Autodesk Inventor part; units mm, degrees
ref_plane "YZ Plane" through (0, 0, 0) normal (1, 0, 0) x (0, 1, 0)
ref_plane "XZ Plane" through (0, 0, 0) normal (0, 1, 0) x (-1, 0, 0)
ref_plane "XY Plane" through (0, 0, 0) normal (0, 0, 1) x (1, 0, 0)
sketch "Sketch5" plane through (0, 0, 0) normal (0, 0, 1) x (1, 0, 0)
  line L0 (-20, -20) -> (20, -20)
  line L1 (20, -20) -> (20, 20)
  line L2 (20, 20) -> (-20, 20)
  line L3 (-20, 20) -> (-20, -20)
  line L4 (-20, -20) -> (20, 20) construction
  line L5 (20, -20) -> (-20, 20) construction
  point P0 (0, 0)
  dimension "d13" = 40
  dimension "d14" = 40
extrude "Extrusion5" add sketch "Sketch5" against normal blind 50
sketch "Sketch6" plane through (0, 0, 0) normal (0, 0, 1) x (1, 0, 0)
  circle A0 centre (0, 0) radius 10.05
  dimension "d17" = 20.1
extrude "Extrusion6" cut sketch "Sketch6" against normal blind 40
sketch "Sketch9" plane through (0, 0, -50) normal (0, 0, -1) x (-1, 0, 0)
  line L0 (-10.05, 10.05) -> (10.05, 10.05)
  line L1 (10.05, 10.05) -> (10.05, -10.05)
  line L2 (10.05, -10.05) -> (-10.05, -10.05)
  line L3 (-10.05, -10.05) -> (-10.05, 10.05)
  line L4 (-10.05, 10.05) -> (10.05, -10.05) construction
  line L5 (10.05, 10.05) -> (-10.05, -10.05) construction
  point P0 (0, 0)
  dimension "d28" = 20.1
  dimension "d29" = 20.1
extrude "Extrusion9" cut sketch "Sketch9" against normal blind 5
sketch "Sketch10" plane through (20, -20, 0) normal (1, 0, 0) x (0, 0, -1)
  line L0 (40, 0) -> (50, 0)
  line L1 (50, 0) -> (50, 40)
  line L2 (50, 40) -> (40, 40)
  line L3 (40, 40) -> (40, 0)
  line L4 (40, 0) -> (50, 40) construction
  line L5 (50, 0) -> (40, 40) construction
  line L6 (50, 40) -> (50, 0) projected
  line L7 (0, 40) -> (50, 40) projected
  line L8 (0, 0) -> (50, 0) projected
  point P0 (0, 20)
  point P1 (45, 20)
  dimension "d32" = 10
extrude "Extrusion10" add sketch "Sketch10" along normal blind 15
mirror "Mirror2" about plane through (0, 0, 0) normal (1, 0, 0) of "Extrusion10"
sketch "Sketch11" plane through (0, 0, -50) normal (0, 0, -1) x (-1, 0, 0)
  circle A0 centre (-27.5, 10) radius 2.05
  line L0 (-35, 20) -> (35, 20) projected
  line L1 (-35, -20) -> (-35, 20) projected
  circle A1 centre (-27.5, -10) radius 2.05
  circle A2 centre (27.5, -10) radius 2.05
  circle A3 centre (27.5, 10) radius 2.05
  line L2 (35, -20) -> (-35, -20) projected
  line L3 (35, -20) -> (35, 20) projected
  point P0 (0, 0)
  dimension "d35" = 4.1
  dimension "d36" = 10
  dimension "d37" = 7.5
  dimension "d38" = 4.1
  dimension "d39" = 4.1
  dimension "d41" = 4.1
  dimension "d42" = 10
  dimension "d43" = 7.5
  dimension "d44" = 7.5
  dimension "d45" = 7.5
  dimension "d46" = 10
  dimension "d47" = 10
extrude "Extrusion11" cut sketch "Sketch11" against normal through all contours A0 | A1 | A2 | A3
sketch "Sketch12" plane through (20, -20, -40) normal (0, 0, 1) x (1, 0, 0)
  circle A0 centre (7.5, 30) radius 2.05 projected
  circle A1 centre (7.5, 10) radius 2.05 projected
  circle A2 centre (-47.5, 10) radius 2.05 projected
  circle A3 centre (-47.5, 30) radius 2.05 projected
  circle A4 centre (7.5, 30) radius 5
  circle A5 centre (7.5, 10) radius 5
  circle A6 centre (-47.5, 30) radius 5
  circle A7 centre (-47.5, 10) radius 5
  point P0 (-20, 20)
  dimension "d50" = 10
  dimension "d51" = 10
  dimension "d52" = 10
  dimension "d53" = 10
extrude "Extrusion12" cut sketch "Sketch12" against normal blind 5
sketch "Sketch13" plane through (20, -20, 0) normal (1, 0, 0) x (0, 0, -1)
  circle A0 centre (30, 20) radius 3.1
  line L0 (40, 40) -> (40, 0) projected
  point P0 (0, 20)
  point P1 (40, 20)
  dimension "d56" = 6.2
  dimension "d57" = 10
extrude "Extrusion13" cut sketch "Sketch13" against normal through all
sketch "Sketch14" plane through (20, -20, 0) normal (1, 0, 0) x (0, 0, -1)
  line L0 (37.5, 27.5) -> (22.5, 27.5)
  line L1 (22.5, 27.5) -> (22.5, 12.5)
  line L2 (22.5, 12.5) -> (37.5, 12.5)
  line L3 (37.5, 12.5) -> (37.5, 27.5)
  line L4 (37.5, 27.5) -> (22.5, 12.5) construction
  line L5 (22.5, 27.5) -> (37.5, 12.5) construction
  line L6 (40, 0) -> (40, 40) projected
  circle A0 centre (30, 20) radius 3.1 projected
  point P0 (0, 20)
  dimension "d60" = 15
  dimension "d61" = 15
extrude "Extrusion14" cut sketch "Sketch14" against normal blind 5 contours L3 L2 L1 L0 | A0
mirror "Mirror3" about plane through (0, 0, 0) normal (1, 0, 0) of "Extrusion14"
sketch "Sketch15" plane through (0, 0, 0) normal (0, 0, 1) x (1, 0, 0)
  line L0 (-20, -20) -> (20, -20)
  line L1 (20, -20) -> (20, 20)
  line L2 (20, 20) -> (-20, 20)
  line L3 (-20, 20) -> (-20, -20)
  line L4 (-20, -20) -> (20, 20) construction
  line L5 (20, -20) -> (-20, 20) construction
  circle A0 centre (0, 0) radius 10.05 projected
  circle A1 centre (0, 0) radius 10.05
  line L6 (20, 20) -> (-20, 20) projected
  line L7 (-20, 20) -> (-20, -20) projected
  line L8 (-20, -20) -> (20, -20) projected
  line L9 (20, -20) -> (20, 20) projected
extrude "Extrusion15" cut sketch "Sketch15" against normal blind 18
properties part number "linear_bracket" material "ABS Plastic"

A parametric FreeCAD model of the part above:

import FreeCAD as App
import Part
import Sketcher
Q = App.Units.Quantity


def add_polygon(sketch, points):
    """Adds a closed chain of lines whose ends are joined by coincident constraints."""
    first, n = sketch.GeometryCount, len(points)
    for a, b in zip(points, points[1:] + points[:1]):
        sketch.addGeometry(Part.LineSegment(App.Vector(*a, 0), App.Vector(*b, 0)), False)
    for i in range(n):
        sketch.addConstraint(Sketcher.Constraint("Coincident", first + i, 2, first + (i + 1) % n, 1))

doc = App.newDocument("Part")
params = doc.addObject("Spreadsheet::Sheet", "Params")
for row, (alias, value) in enumerate([
    ("sketch1_width", "40 mm"),
    ("pad1_length", "50 mm"),
    ("sketch2_diameter", "20.1 mm"),
    ("pocket1_length", "40 mm"),
    ("sketch3_width", "20.1 mm"),
    ("pocket2_length", "5 mm"),
    ("sketch4_height", "10 mm"),
    ("sketch4_width", "40 mm"),
    ("pad2_length", "15 mm"),
    ("sketch5_diameter", "4.1 mm"),
    ("sketch6_diameter", "10 mm"),
    ("sketch6_diameter2", "4.1 mm"),
    ("pocket4_length", "5 mm"),
    ("sketch7_diameter", "6.2 mm"),
    ("sketch8_width", "15 mm"),
    ("pocket6_length", "5 mm"),
    ("sketch9_diameter", "20.1 mm"),
    ("sketch9_width", "40 mm"),
    ("pocket7_length", "18 mm"),
], start=1):
    params.set(f"A{row}", alias)
    params.set(f"B{row}", "=" + value)
    params.setAlias(f"B{row}", alias)

body = doc.addObject("PartDesign::Body", "Body")

# Sketch on XY plane
sketch1 = body.newObject("Sketcher::SketchObject", "Sketch")
sketch1.AttachmentSupport = (doc.getObject("XY_Plane"), [""])
sketch1.MapMode = "FlatFace"
add_polygon(sketch1, [(-20, 20), (-20, -20), (20, -20), (20, 20)])  # lines 0-3
sketch1.addConstraint([
    Sketcher.Constraint("Vertical", 0),
    Sketcher.Constraint("Horizontal", 1),
    Sketcher.Constraint("Vertical", 2),
    Sketcher.Constraint("Horizontal", 3),
    Sketcher.Constraint("Symmetric", 0, 2, 2, 2, -1, 1),
    Sketcher.Constraint("Equal", 3, 0),
    Sketcher.Constraint("DistanceX", 1, 1, 1, 2, Q("40 mm")),
])
sketch1.setExpression("Constraints[10]", "Params.sketch1_width")
pad1 = body.newObject("PartDesign::Pad", "Pad")
pad1.Profile = sketch1
pad1.setExpression("Length", "Params.pad1_length")
pad1.Reversed = True

# Sketch on XY plane
sketch2 = body.newObject("Sketcher::SketchObject", "Sketch001")
sketch2.AttachmentSupport = (doc.getObject("XY_Plane"), [""])
sketch2.MapMode = "FlatFace"
sketch2.addGeometry(Part.Circle(App.Vector(0, 0, 0), App.Vector(0, 0, 1), 10), False)
sketch2.addConstraint([
    Sketcher.Constraint("Coincident", 0, 3, -1, 1),
    Sketcher.Constraint("Diameter", 0, Q("20.1 mm")),
])
sketch2.setExpression("Constraints[1]", "Params.sketch2_diameter")
pocket1 = body.newObject("PartDesign::Pocket", "Pocket")
pocket1.Profile = sketch2
pocket1.setExpression("Length", "Params.pocket1_length")

# Sketch on XY plane
sketch3 = body.newObject("Sketcher::SketchObject", "Sketch002")
sketch3.AttachmentSupport = (doc.getObject("XY_Plane"), [""])
sketch3.MapMode = "FlatFace"
sketch3.AttachmentOffset = App.Placement(App.Vector(0, 0, -50), App.Rotation())
add_polygon(sketch3, [(-10, 10), (10, 10), (10, -10), (-10, -10)])  # lines 0-3
sketch3.addConstraint([
    Sketcher.Constraint("Horizontal", 0),
    Sketcher.Constraint("Vertical", 1),
    Sketcher.Constraint("Horizontal", 2),
    Sketcher.Constraint("Vertical", 3),
    Sketcher.Constraint("Symmetric", 0, 2, 2, 2, -1, 1),
    Sketcher.Constraint("Equal", 2, 1),
    Sketcher.Constraint("DistanceX", 0, 1, 0, 2, Q("20.1 mm")),
])
sketch3.setExpression("Constraints[10]", "Params.sketch3_width")
pocket2 = body.newObject("PartDesign::Pocket", "Pocket001")
pocket2.Profile = sketch3
pocket2.setExpression("Length", "Params.pocket2_length")
pocket2.Reversed = True

# Sketch on YZ plane
sketch4 = body.newObject("Sketcher::SketchObject", "Sketch003")
sketch4.AttachmentSupport = (doc.getObject("YZ_Plane"), [""])
sketch4.MapMode = "FlatFace"
sketch4.AttachmentOffset = App.Placement(App.Vector(0, 0, 20), App.Rotation())
add_polygon(sketch4, [(20, -40), (-20, -40), (-20, -50), (20, -50)])  # lines 0-3
sketch4.addConstraint([
    Sketcher.Constraint("Horizontal", 0),
    Sketcher.Constraint("Vertical", 1),
    Sketcher.Constraint("Horizontal", 2),
    Sketcher.Constraint("Vertical", 3),
    Sketcher.Constraint("DistanceY", 1, 2, 1, 1, Q("10 mm")),
    Sketcher.Constraint("DistanceX", 0, 2, 0, 1, Q("40 mm")),
    Sketcher.Constraint("DistanceX", 0, 2, -1, 1, Q("20 mm")),
    Sketcher.Constraint("DistanceY", 0, 2, -1, 1, Q("40 mm")),
])
sketch4.setExpression("Constraints[8]", "Params.sketch4_height")
sketch4.setExpression("Constraints[9]", "Params.sketch4_width")
pad2 = body.newObject("PartDesign::Pad", "Pad001")
pad2.Profile = sketch4
pad2.setExpression("Length", "Params.pad2_length")
doc.recompute()

mirrored = body.newObject("PartDesign::Mirrored", "Mirrored")
mirrored.Originals = [pad2]
mirrored.MirrorPlane = (doc.getObject("YZ_Plane"), [""])
body.Tip = mirrored

# Sketch on XY plane
sketch5 = body.newObject("Sketcher::SketchObject", "Sketch004")
sketch5.AttachmentSupport = (doc.getObject("XY_Plane"), [""])
sketch5.MapMode = "FlatFace"
sketch5.AttachmentOffset = App.Placement(App.Vector(0, 0, -50), App.Rotation())
sketch5.addGeometry([
    Part.Circle(App.Vector(27.5, 10, 0), App.Vector(0, 0, 1), 2),
    Part.Circle(App.Vector(27.5, -10, 0), App.Vector(0, 0, 1), 2),
    Part.Circle(App.Vector(-27.5, -10, 0), App.Vector(0, 0, 1), 2),
    Part.Circle(App.Vector(-27.5, 10, 0), App.Vector(0, 0, 1), 2),
], False)
sketch5.addConstraint([
    Sketcher.Constraint("Equal", 0, 1),
    Sketcher.Constraint("Equal", 1, 2),
    Sketcher.Constraint("Equal", 2, 3),
    Sketcher.Constraint("Symmetric", 0, 3, 2, 3, -1, 1),
    Sketcher.Constraint("Symmetric", 1, 3, 3, 3, -1, 1),
    Sketcher.Constraint("Symmetric", 1, 3, 2, 3, -2),
    Sketcher.Constraint("Diameter", 0, Q("4.1 mm")),
    Sketcher.Constraint("DistanceY", -1, 1, 0, 3, Q("10 mm")),
    Sketcher.Constraint("DistanceX", 2, 3, 1, 3, Q("55 mm")),
])
sketch5.setExpression("Constraints[6]", "Params.sketch5_diameter")
pocket3 = body.newObject("PartDesign::Pocket", "Pocket002")
pocket3.Profile = sketch5
pocket3.Type = "ThroughAll"
pocket3.Reversed = True

# Sketch on XY plane
sketch6 = body.newObject("Sketcher::SketchObject", "Sketch005")
sketch6.AttachmentSupport = (doc.getObject("XY_Plane"), [""])
sketch6.MapMode = "FlatFace"
sketch6.AttachmentOffset = App.Placement(App.Vector(0, 0, -40), App.Rotation())
sketch6.addGeometry([
    Part.Circle(App.Vector(27.5, 10, 0), App.Vector(0, 0, 1), 5),  # 0
    Part.Circle(App.Vector(27.5, 10, 0), App.Vector(0, 0, 1), 2),  # 1
    Part.Circle(App.Vector(27.5, -10, 0), App.Vector(0, 0, 1), 5),  # 2
    Part.Circle(App.Vector(27.5, -10, 0), App.Vector(0, 0, 1), 2),  # 3
    Part.Circle(App.Vector(-27.5, 10, 0), App.Vector(0, 0, 1), 5),  # 4
    Part.Circle(App.Vector(-27.5, 10, 0), App.Vector(0, 0, 1), 2),  # 5
    Part.Circle(App.Vector(-27.5, -10, 0), App.Vector(0, 0, 1), 5),  # 6
    Part.Circle(App.Vector(-27.5, -10, 0), App.Vector(0, 0, 1), 2),  # 7
], False)
sketch6.addConstraint([
    Sketcher.Constraint("Coincident", 1, 3, 0, 3),
    Sketcher.Constraint("Coincident", 3, 3, 2, 3),
    Sketcher.Constraint("Coincident", 5, 3, 4, 3),
    Sketcher.Constraint("Coincident", 7, 3, 6, 3),
    Sketcher.Constraint("Equal", 0, 2),
    Sketcher.Constraint("Equal", 1, 3),
    Sketcher.Constraint("Equal", 2, 4),
    Sketcher.Constraint("Equal", 3, 5),
    Sketcher.Constraint("Equal", 4, 6),
    Sketcher.Constraint("Equal", 5, 7),
    Sketcher.Constraint("Symmetric", 2, 3, 4, 3, -1, 1),
    Sketcher.Constraint("Symmetric", 0, 3, 6, 3, -1, 1),
    Sketcher.Constraint("Symmetric", 0, 3, 4, 3, -2),
    Sketcher.Constraint("Diameter", 0, Q("10 mm")),
    Sketcher.Constraint("DistanceY", -1, 1, 0, 3, Q("10 mm")),
    Sketcher.Constraint("Diameter", 1, Q("4.1 mm")),
    Sketcher.Constraint("DistanceX", 4, 3, 0, 3, Q("55 mm")),
])
sketch6.setExpression("Constraints[13]", "Params.sketch6_diameter")
sketch6.setExpression("Constraints[15]", "Params.sketch6_diameter2")
pocket4 = body.newObject("PartDesign::Pocket", "Pocket003")
pocket4.Profile = sketch6
pocket4.setExpression("Length", "Params.pocket4_length")

# Sketch on YZ plane
sketch7 = body.newObject("Sketcher::SketchObject", "Sketch006")
sketch7.AttachmentSupport = (doc.getObject("YZ_Plane"), [""])
sketch7.MapMode = "FlatFace"
sketch7.AttachmentOffset = App.Placement(App.Vector(0, 0, 20), App.Rotation())
sketch7.addGeometry(Part.Circle(App.Vector(0, -30, 0), App.Vector(0, 0, 1), 3.1), False)
sketch7.addConstraint([
    Sketcher.Constraint("PointOnObject", 0, 3, -2),
    Sketcher.Constraint("Diameter", 0, Q("6.2 mm")),
    Sketcher.Constraint("DistanceY", 0, 3, -1, 1, Q("30 mm")),
])
sketch7.setExpression("Constraints[1]", "Params.sketch7_diameter")
pocket5 = body.newObject("PartDesign::Pocket", "Pocket004")
pocket5.Profile = sketch7
pocket5.Type = "ThroughAll"

# Sketch on YZ plane
sketch8 = body.newObject("Sketcher::SketchObject", "Sketch007")
sketch8.AttachmentSupport = (doc.getObject("YZ_Plane"), [""])
sketch8.MapMode = "FlatFace"
sketch8.AttachmentOffset = App.Placement(App.Vector(0, 0, 20), App.Rotation())
add_polygon(sketch8, [(-8, -38), (8, -38), (8, -22), (-8, -22)])  # lines 0-3
sketch8.addConstraint([
    Sketcher.Constraint("Horizontal", 0),
    Sketcher.Constraint("Vertical", 1),
    Sketcher.Constraint("Horizontal", 2),
    Sketcher.Constraint("Vertical", 3),
    Sketcher.Constraint("Equal", 2, 1),
    Sketcher.Constraint("DistanceX", 0, 1, 0, 2, Q("15 mm")),
    Sketcher.Constraint("DistanceX", -1, 1, 0, 2, Q("7.5 mm")),
    Sketcher.Constraint("DistanceY", 0, 2, -1, 1, Q("37.5 mm")),
])
sketch8.setExpression("Constraints[9]", "Params.sketch8_width")
pocket6 = body.newObject("PartDesign::Pocket", "Pocket005")
pocket6.Profile = sketch8
pocket6.setExpression("Length", "Params.pocket6_length")
doc.recompute()

mirrored2 = body.newObject("PartDesign::Mirrored", "Mirrored001")
mirrored2.Originals = [pocket6]
mirrored2.MirrorPlane = (doc.getObject("YZ_Plane"), [""])
body.Tip = mirrored2

# Sketch on XY plane
sketch9 = body.newObject("Sketcher::SketchObject", "Sketch008")
sketch9.AttachmentSupport = (doc.getObject("XY_Plane"), [""])
sketch9.MapMode = "FlatFace"
add_polygon(sketch9, [(-20, 20), (-20, -20), (20, -20), (20, 20)])  # lines 0-3
sketch9.addGeometry(Part.Circle(App.Vector(0, 0, 0), App.Vector(0, 0, 1), 10), False)  # 4
sketch9.addConstraint([
    Sketcher.Constraint("Vertical", 0),
    Sketcher.Constraint("Horizontal", 1),
    Sketcher.Constraint("Vertical", 2),
    Sketcher.Constraint("Horizontal", 3),
    Sketcher.Constraint("Coincident", 4, 3, -1, 1),
    Sketcher.Constraint("Symmetric", 0, 2, 2, 2, -1, 1),
    Sketcher.Constraint("Equal", 3, 0),
    Sketcher.Constraint("Diameter", 4, Q("20.1 mm")),
    Sketcher.Constraint("DistanceX", 1, 1, 1, 2, Q("40 mm")),
])
sketch9.setExpression("Constraints[11]", "Params.sketch9_diameter")
sketch9.setExpression("Constraints[12]", "Params.sketch9_width")
pocket7 = body.newObject("PartDesign::Pocket", "Pocket006")
pocket7.Profile = sketch9
pocket7.setExpression("Length", "Params.pocket7_length")

doc.recompute()
